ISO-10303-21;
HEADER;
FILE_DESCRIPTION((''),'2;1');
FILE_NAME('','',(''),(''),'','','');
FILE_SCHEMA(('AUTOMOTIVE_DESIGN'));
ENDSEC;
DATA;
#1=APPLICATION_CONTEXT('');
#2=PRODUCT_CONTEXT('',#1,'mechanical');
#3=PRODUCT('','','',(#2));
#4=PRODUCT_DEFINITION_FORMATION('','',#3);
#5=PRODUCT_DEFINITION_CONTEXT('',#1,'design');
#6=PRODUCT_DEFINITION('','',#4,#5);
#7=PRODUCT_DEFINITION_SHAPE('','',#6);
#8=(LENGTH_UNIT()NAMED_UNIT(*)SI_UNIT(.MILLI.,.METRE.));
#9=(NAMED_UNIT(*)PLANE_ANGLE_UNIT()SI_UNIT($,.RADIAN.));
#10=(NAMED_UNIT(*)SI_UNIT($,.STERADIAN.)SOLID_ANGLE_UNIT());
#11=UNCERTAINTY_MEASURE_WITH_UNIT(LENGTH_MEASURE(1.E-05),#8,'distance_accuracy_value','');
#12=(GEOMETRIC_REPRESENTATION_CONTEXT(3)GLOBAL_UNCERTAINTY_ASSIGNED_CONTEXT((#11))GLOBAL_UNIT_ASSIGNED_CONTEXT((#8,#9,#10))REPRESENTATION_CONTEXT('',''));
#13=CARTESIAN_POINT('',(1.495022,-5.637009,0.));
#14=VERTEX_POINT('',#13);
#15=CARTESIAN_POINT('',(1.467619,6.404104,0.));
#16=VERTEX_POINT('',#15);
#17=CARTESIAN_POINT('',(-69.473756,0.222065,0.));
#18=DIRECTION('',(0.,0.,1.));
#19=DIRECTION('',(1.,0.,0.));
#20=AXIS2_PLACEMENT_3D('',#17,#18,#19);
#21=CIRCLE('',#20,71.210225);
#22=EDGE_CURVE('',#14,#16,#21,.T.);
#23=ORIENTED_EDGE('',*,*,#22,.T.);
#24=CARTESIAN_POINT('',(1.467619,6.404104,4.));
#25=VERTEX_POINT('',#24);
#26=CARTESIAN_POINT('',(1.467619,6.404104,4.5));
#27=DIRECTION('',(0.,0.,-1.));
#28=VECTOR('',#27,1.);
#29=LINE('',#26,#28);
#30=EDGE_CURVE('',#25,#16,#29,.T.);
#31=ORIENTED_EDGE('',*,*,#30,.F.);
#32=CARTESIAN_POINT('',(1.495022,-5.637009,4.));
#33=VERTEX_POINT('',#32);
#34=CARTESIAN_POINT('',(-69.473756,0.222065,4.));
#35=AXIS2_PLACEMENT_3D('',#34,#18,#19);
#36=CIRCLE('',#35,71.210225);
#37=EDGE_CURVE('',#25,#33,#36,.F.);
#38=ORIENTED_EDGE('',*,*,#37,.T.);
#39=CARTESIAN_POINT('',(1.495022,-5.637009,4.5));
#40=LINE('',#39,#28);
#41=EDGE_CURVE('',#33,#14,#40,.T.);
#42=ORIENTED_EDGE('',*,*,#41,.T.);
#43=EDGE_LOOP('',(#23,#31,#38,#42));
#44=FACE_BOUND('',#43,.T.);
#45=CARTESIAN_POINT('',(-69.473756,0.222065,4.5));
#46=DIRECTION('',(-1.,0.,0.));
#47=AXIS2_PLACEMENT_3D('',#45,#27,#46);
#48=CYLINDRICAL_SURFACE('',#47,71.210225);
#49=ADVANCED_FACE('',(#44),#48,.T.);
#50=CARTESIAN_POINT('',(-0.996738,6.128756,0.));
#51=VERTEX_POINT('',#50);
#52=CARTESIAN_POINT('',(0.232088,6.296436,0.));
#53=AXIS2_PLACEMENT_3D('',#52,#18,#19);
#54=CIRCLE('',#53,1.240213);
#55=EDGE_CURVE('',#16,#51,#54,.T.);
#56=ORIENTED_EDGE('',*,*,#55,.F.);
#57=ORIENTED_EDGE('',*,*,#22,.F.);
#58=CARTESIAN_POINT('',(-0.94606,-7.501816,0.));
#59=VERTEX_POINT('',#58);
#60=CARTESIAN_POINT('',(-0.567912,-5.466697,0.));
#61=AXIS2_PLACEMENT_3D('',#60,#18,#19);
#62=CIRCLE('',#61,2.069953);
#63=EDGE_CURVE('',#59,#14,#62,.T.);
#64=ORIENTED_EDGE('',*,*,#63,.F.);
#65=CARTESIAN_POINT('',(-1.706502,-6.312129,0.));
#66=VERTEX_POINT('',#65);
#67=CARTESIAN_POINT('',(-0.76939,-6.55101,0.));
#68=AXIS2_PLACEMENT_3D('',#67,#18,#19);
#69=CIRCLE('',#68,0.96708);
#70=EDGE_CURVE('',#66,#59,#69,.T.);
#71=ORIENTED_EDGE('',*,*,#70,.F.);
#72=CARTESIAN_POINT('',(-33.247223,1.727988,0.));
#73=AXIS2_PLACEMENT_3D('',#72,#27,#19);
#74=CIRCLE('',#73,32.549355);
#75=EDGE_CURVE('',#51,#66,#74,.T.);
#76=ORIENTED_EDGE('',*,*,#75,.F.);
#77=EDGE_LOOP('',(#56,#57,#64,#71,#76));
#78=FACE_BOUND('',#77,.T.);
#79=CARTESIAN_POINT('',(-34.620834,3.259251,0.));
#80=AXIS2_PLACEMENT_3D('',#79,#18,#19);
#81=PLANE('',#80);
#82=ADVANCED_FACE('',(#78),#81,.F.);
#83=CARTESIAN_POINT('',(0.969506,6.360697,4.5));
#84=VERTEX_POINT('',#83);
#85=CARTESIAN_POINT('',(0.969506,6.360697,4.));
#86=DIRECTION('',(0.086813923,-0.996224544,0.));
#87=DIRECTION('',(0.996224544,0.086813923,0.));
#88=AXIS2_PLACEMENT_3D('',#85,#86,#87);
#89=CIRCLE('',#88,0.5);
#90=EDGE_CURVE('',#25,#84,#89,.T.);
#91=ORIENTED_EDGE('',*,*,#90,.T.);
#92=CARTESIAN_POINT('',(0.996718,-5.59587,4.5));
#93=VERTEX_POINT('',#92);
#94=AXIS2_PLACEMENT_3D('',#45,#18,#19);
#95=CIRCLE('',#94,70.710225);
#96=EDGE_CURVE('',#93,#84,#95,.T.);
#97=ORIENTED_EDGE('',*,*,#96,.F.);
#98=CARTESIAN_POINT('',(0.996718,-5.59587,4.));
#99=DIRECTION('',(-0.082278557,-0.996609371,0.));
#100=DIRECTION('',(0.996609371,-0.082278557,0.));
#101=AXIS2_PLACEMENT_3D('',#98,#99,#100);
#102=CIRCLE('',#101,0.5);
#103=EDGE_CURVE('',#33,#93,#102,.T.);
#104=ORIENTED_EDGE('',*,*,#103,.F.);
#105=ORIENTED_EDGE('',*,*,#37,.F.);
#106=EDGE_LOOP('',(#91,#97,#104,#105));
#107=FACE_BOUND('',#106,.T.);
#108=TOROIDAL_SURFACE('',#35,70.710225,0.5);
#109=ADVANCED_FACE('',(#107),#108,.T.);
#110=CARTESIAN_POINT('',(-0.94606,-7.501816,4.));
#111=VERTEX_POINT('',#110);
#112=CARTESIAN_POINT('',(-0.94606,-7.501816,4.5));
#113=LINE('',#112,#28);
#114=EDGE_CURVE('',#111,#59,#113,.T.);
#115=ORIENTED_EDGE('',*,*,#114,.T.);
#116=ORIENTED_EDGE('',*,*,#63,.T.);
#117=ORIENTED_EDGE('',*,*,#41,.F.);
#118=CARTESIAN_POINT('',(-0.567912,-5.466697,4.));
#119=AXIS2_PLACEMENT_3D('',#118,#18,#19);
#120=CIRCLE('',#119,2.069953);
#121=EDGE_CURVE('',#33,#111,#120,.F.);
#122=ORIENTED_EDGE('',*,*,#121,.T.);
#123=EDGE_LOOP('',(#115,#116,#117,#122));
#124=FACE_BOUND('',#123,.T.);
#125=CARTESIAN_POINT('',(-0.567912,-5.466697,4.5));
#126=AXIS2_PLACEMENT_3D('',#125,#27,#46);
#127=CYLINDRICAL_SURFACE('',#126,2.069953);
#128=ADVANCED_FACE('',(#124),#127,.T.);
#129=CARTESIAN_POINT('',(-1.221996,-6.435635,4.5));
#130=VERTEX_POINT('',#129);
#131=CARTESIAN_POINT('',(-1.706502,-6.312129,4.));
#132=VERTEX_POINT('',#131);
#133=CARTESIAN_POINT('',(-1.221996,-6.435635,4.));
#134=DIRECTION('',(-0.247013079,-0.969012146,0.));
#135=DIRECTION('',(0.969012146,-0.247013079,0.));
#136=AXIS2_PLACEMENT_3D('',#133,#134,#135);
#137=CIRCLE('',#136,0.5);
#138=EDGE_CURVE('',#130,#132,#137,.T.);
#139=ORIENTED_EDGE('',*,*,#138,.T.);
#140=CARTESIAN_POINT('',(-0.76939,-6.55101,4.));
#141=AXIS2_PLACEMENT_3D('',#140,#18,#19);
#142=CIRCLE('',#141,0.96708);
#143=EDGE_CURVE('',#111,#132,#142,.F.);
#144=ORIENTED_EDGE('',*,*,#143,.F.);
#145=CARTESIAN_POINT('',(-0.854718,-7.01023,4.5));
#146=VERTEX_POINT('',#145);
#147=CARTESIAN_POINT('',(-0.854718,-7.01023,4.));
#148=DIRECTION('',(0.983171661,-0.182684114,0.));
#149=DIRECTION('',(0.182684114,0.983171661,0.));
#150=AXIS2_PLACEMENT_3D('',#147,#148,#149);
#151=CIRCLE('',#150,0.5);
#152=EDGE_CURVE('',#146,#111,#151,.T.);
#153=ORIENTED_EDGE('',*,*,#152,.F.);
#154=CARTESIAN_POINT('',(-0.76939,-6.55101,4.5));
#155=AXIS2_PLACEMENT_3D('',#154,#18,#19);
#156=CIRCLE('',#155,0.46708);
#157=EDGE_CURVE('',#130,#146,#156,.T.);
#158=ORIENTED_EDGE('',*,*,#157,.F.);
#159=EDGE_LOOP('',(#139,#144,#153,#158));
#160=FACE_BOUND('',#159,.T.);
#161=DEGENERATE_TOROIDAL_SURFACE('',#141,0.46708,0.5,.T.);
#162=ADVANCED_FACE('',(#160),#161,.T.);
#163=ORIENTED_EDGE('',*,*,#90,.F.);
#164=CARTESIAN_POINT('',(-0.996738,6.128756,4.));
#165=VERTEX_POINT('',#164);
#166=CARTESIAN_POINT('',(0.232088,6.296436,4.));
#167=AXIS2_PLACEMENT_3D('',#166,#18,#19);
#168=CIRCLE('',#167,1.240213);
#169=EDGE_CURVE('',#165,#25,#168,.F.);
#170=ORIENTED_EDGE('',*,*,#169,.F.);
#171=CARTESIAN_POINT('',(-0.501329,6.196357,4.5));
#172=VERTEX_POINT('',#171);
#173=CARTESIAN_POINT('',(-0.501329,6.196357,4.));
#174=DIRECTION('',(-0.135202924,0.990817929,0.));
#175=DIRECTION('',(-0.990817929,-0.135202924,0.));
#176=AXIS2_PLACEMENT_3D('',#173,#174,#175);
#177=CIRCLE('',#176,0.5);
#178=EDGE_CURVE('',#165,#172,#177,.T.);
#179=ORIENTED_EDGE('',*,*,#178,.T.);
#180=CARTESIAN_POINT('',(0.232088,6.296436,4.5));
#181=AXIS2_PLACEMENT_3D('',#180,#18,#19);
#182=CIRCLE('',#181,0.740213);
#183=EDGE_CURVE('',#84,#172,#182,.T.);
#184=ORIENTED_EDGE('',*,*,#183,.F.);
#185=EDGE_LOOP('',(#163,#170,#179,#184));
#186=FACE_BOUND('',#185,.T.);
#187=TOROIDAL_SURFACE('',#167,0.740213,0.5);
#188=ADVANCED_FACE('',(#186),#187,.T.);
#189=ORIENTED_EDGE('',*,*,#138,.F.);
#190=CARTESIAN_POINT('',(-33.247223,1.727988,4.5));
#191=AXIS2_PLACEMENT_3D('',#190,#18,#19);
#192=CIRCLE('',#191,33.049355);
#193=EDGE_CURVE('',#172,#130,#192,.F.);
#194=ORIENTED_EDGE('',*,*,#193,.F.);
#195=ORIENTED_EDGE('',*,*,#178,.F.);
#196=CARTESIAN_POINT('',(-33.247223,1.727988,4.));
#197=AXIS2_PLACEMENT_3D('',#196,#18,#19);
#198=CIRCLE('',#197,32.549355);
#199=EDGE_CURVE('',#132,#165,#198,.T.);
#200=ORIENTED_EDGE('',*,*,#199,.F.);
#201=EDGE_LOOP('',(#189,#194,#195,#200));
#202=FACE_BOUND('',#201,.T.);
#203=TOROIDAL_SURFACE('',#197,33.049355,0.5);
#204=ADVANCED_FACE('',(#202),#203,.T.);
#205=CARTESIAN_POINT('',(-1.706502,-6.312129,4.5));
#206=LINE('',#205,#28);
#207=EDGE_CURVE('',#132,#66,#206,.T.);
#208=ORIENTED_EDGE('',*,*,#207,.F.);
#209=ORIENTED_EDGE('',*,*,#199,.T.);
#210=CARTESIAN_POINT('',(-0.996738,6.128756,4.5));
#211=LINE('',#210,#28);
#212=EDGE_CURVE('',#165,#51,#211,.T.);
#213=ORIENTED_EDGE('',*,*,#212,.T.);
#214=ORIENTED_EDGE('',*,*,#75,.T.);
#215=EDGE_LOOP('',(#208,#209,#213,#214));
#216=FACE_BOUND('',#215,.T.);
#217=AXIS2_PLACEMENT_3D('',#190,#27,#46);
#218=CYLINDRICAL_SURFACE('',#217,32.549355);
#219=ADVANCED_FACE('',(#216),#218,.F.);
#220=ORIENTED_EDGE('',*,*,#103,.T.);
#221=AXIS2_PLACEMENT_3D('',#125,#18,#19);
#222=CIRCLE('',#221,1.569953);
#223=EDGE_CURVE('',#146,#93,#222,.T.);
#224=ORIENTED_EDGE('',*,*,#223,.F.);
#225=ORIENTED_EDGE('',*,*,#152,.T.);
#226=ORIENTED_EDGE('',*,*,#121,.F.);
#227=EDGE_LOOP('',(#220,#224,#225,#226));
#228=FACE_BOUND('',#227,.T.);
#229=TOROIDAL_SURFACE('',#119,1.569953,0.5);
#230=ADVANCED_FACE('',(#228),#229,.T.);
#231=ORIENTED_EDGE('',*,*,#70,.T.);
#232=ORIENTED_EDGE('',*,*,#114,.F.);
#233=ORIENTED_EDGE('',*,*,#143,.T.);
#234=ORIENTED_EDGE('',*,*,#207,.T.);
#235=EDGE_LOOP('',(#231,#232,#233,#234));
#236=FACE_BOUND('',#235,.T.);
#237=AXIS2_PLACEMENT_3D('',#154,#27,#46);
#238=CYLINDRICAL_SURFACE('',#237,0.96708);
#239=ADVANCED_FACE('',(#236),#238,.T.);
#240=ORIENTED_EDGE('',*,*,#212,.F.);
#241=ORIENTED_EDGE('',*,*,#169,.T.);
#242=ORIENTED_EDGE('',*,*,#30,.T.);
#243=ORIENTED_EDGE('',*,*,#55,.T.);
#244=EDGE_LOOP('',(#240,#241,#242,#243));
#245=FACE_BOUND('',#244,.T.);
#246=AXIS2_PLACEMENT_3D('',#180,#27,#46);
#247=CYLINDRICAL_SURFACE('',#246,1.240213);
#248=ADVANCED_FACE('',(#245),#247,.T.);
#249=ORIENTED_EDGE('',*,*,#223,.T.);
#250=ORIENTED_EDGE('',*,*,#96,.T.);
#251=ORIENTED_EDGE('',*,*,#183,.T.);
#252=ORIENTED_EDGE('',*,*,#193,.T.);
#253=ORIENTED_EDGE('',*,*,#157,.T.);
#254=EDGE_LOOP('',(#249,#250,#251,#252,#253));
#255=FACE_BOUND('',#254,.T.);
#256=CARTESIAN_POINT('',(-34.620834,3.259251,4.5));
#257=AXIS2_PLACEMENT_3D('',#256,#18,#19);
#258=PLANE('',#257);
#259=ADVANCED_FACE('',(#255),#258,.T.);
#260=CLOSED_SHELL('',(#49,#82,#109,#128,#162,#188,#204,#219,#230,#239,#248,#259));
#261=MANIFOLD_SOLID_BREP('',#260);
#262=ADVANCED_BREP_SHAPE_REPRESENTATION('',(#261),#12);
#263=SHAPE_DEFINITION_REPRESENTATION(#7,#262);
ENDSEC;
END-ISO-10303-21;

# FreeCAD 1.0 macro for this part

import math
import FreeCAD as App
import Part
import Sketcher
from FreeCAD import Vector
Q = App.Units.Quantity


def edges_at(feature, points):
    """Names of the edges that pass closest to the given points."""
    edges = feature.Shape.Edges
    near = lambda p: min(range(len(edges)), key=lambda i: edges[i].distToShape(Part.Vertex(*p))[0])
    return sorted({f"Edge{near(p) + 1}" for p in points})

doc = App.newDocument("Part")
body = doc.addObject("PartDesign::Body", "Body")

sketch1 = doc.addObject("Sketcher::SketchObject", "Sketch")
body.addObject(sketch1)
sketch1.AttachmentSupport = (doc.XY_Plane, [""])
sketch1.MapMode = "FlatFace"
sketch1.addGeometry(Part.ArcOfCircle(Part.Circle(Vector(0.2, 6.3, 0), Vector(0, 0, 1), 1.2), math.radians(5), math.radians(188)), False)
sketch1.addGeometry(Part.ArcOfCircle(Part.Circle(Vector(-33.2, 1.7, 0), Vector(0, 0, 1), 32.5), math.radians(-14), math.radians(8)), False)
sketch1.addGeometry(Part.ArcOfCircle(Part.Circle(Vector(-0.8, -6.6, 0), Vector(0, 0, 1), 1), math.radians(166), math.radians(259)), False)
sketch1.addGeometry(Part.ArcOfCircle(Part.Circle(Vector(-0.6, -5.5, 0), Vector(0, 0, 1), 2.1), math.radians(-101), math.radians(-5)), False)
sketch1.addGeometry(Part.ArcOfCircle(Part.Circle(Vector(-69.5, 0.2, 0), Vector(0, 0, 1), 71.2), math.radians(-4.72), math.radians(4.98)), False)
sketch1.addConstraint(Sketcher.Constraint("Tangent", 0, 2, 1, 2))
sketch1.addConstraint(Sketcher.Constraint("Tangent", 1, 1, 2, 1))
sketch1.addConstraint(Sketcher.Constraint("Tangent", 2, 2, 3, 1))
sketch1.addConstraint(Sketcher.Constraint("Tangent", 3, 2, 4, 1))
sketch1.addConstraint(Sketcher.Constraint("Tangent", 4, 2, 0, 1))
sketch1.addConstraint(Sketcher.Constraint("DistanceX", 3, 3, 0, 3, Q("0.8 mm")))
sketch1.addConstraint(Sketcher.Constraint("Radius", 2, Q("0.96708 mm")))
sketch1.addConstraint(Sketcher.Constraint("Radius", 0, Q("1.240213 mm")))
sketch1.addConstraint(Sketcher.Constraint("Radius", 1, Q("32.549355 mm")))
sketch1.addConstraint(Sketcher.Constraint("Radius", 3, Q("2.069953 mm")))
sketch1.addConstraint(Sketcher.Constraint("Radius", 4, Q("71.210226 mm")))
sketch1.addConstraint(Sketcher.Constraint("DistanceY", 2, 3, 3, 2, Q("0.914001 mm")))
sketch1.addConstraint(Sketcher.Constraint("DistanceY", 3, 3, 4, 2, Q("11.870801 mm")))
sketch1.addConstraint(Sketcher.Constraint("DistanceX", 2, 3, -1, 1, Q("0.76939 mm")))
sketch1.addConstraint(Sketcher.Constraint("DistanceY", 2, 3, -1, 1, Q("6.55101 mm")))
pad1 = doc.addObject("PartDesign::Pad", "Pad")
body.addObject(pad1)
pad1.Profile = sketch1
pad1.Length = 4.5
doc.recompute()

fillet = doc.addObject("PartDesign::Fillet", "Fillet")
body.addObject(fillet)
fillet.Base = (pad1, edges_at(pad1, [
    (-0.751, -0.126, 4.5),
    (-1.584, -7.072, 4.5),
    (0.689, -7.112, 4.5),
    (1.736, 0.384, 4.5),
    (0.094, 7.529, 4.5),
]))
fillet.Radius = 0.5

doc.recompute()
